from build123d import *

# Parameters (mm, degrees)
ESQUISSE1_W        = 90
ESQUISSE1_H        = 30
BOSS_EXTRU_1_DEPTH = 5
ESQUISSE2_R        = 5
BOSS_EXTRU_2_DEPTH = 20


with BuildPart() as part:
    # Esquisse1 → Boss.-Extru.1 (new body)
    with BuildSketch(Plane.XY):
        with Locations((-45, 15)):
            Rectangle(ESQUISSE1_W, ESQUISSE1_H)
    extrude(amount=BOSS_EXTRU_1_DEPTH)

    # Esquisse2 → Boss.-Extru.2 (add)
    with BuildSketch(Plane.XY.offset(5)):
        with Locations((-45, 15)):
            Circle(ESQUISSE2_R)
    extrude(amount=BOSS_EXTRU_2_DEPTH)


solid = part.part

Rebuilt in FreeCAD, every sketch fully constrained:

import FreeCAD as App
import Part
import Sketcher


def add_polygon(sketch, points):
    """Adds a closed chain of lines whose ends are joined by coincident constraints."""
    first, n = sketch.GeometryCount, len(points)
    for a, b in zip(points, points[1:] + points[:1]):
        sketch.addGeometry(Part.LineSegment(App.Vector(*a, 0), App.Vector(*b, 0)), False)
    for i in range(n):
        sketch.addConstraint(Sketcher.Constraint("Coincident", first + i, 2, first + (i + 1) % n, 1))

doc = App.newDocument("Part")
params = doc.addObject("Spreadsheet::Sheet", "Params")
for row, (alias, value) in enumerate([
    ("sketch1_width", "90 mm"),
    ("sketch1_height", "30 mm"),
    ("pad1_length", "5 mm"),
    ("sketch2_diameter", "10 mm"),
    ("pad2_length", "20 mm"),
], start=1):
    params.set(f"A{row}", alias)
    params.set(f"B{row}", "=" + value)
    params.setAlias(f"B{row}", alias)

body = doc.addObject("PartDesign::Body", "Body")

# Sketch on XY plane
sketch1 = body.newObject("Sketcher::SketchObject", "Sketch")
sketch1.AttachmentSupport = (doc.getObject("XY_Plane"), [""])
sketch1.MapMode = "FlatFace"
add_polygon(sketch1, [(-90, 30), (-90, 0), (0, 0), (0, 30)])  # lines 0-3
sketch1.addConstraint([
    Sketcher.Constraint("Vertical", 0),
    Sketcher.Constraint("Horizontal", 1),
    Sketcher.Constraint("Vertical", 2),
    Sketcher.Constraint("Horizontal", 3),
    Sketcher.Constraint("Coincident", 1, 2, -1, 1),
    Sketcher.Constraint("DistanceX", 1, 1, 1, 2, 90.0),
    Sketcher.Constraint("DistanceY", 0, 2, 0, 1, 30.0),
])
sketch1.setExpression("Constraints[9]", "Params.sketch1_width")
sketch1.setExpression("Constraints[10]", "Params.sketch1_height")
pad1 = body.newObject("PartDesign::Pad", "Pad")
pad1.Profile = sketch1
pad1.setExpression("Length", "Params.pad1_length")

# Sketch on XY plane
sketch2 = body.newObject("Sketcher::SketchObject", "Sketch001")
sketch2.AttachmentSupport = (doc.getObject("XY_Plane"), [""])
sketch2.MapMode = "FlatFace"
sketch2.AttachmentOffset = App.Placement(App.Vector(0, 0, 5), App.Rotation())
sketch2.addGeometry(Part.Circle(App.Vector(-45, 15, 0), App.Vector(0, 0, 1), 5), False)
sketch2.addConstraint([
    Sketcher.Constraint("Diameter", 0, 10.0),
    Sketcher.Constraint("DistanceX", 0, 3, -1, 1, 45.0),
    Sketcher.Constraint("DistanceY", -1, 1, 0, 3, 15.0),
])
sketch2.setExpression("Constraints[0]", "Params.sketch2_diameter")
pad2 = body.newObject("PartDesign::Pad", "Pad001")
pad2.Profile = sketch2
pad2.setExpression("Length", "Params.pad2_length")

doc.recompute()
